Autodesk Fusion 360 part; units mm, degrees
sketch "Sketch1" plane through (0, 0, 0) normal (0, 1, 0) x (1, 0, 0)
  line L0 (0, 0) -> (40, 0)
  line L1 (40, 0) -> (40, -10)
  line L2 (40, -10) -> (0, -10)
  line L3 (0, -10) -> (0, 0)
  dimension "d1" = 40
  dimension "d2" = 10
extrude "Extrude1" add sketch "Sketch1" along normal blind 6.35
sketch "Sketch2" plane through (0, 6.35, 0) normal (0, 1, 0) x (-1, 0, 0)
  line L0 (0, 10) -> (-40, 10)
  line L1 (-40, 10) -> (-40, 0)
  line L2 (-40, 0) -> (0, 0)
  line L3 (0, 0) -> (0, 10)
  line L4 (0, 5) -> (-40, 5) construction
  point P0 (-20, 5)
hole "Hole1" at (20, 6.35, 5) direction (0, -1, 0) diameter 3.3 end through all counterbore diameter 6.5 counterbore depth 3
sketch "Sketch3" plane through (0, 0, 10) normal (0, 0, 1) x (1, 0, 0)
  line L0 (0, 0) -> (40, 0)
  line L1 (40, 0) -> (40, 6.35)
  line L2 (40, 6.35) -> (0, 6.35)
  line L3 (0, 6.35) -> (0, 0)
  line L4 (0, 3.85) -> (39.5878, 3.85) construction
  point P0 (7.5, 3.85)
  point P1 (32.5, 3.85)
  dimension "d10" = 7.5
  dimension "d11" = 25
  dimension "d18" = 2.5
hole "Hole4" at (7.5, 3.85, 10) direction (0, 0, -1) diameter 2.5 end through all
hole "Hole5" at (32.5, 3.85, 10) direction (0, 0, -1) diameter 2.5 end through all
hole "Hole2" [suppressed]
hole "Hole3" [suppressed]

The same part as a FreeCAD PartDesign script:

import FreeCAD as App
import Part
import Sketcher
from FreeCAD import Vector
Q = App.Units.Quantity

doc = App.newDocument("Part")
params = doc.addObject("Spreadsheet::Sheet", "Params")
for row, (alias, value) in enumerate([
    ("sketch1_width", "40 mm"),
    ("sketch1_height", "10 mm"),
    ("pad1_length", "6.35 mm"),
    ("sketch2_diameter", "3.3 mm"),
    ("hole_diameter", "3.3 mm"),
    ("hole_cbore_diameter", "6.5 mm"),
    ("hole_cbore_depth", "3 mm"),
    ("sketch3_diameter", "2.5 mm"),
    ("hole2_diameter", "2.5 mm"),
    ("sketch4_diameter", "2.5 mm"),
    ("hole3_diameter", "2.5 mm"),
], start=1):
    params.set(f"A{row}", alias)
    params.set(f"B{row}", "=" + value)
    params.setAlias(f"B{row}", alias)

body = doc.addObject("PartDesign::Body", "Body")

# Sketch on XZ plane
sketch1 = doc.addObject("Sketcher::SketchObject", "Sketch")
body.addObject(sketch1)
sketch1.AttachmentSupport = (doc.XZ_Plane, [""])
sketch1.MapMode = "FlatFace"
sketch1.addGeometry([
    Part.LineSegment(Vector(40, 0, 0), Vector(0, 0, 0)),
    Part.LineSegment(Vector(0, 0, 0), Vector(0, 10, 0)),
    Part.LineSegment(Vector(0, 10, 0), Vector(40, 10, 0)),
    Part.LineSegment(Vector(40, 10, 0), Vector(40, 0, 0)),
], False)
sketch1.addConstraint([
    Sketcher.Constraint("Coincident", 0, 2, 1, 1),
    Sketcher.Constraint("Coincident", 1, 2, 2, 1),
    Sketcher.Constraint("Coincident", 2, 2, 3, 1),
    Sketcher.Constraint("Coincident", 3, 2, 0, 1),
    Sketcher.Constraint("Horizontal", 0),
    Sketcher.Constraint("Vertical", 1),
    Sketcher.Constraint("Horizontal", 2),
    Sketcher.Constraint("Vertical", 3),
    Sketcher.Constraint("Coincident", 0, 2, -1, 1),
    Sketcher.Constraint("DistanceX", 0, 2, 0, 1, Q("40 mm")),
    Sketcher.Constraint("DistanceY", 1, 1, 1, 2, Q("10 mm")),
])
sketch1.setExpression("Constraints[9]", "Params.sketch1_width")
sketch1.setExpression("Constraints[10]", "Params.sketch1_height")
pad1 = doc.addObject("PartDesign::Pad", "Pad")
body.addObject(pad1)
pad1.Profile = sketch1
pad1.setExpression("Length", "Params.pad1_length")
pad1.Reversed = True

# Sketch on XZ plane
sketch2 = doc.addObject("Sketcher::SketchObject", "Sketch001")
body.addObject(sketch2)
sketch2.AttachmentSupport = (doc.XZ_Plane, [""])
sketch2.MapMode = "FlatFace"
sketch2.AttachmentOffset = App.Placement(Vector(0, 0, -6.35), App.Rotation())
sketch2.addGeometry(Part.Circle(Vector(20, 5, 0), Vector(0, 0, 1), 1.6), False)
sketch2.addConstraint([
    Sketcher.Constraint("Diameter", 0, Q("3.3 mm")),
    Sketcher.Constraint("DistanceX", -1, 1, 0, 3, Q("20 mm")),
    Sketcher.Constraint("DistanceY", -1, 1, 0, 3, Q("5 mm")),
])
sketch2.setExpression("Constraints[0]", "Params.sketch2_diameter")
doc.recompute()
hole = doc.addObject("PartDesign::Hole", "Hole")
body.addObject(hole)
hole.Profile = sketch2
hole.ThreadType = "None"
hole.setExpression("Diameter", "Params.hole_diameter")
hole.DepthType = "ThroughAll"
hole.HoleCutType = "Counterbore"
hole.setExpression("HoleCutDiameter", "Params.hole_cbore_diameter")
hole.setExpression("HoleCutDepth", "Params.hole_cbore_depth")
hole.Reversed = True

# Sketch on XY plane
sketch3 = doc.addObject("Sketcher::SketchObject", "Sketch002")
body.addObject(sketch3)
sketch3.AttachmentSupport = (doc.XY_Plane, [""])
sketch3.MapMode = "FlatFace"
sketch3.AttachmentOffset = App.Placement(Vector(0, 0, 10), App.Rotation())
sketch3.addGeometry(Part.Circle(Vector(7.5, 3.9, 0), Vector(0, 0, 1), 1.2), False)
sketch3.addConstraint([
    Sketcher.Constraint("Diameter", 0, Q("2.5 mm")),
    Sketcher.Constraint("DistanceX", -1, 1, 0, 3, Q("7.5 mm")),
    Sketcher.Constraint("DistanceY", -1, 1, 0, 3, Q("3.85 mm")),
])
sketch3.setExpression("Constraints[0]", "Params.sketch3_diameter")
doc.recompute()
hole2 = doc.addObject("PartDesign::Hole", "Hole001")
body.addObject(hole2)
hole2.Profile = sketch3
hole2.ThreadType = "None"
hole2.setExpression("Diameter", "Params.hole2_diameter")
hole2.DepthType = "ThroughAll"

# Sketch on XY plane
sketch4 = doc.addObject("Sketcher::SketchObject", "Sketch003")
body.addObject(sketch4)
sketch4.AttachmentSupport = (doc.XY_Plane, [""])
sketch4.MapMode = "FlatFace"
sketch4.AttachmentOffset = App.Placement(Vector(0, 0, 10), App.Rotation())
sketch4.addGeometry(Part.Circle(Vector(32.5, 3.9, 0), Vector(0, 0, 1), 1.2), False)
sketch4.addConstraint([
    Sketcher.Constraint("Diameter", 0, Q("2.5 mm")),
    Sketcher.Constraint("DistanceX", -1, 1, 0, 3, Q("32.5 mm")),
    Sketcher.Constraint("DistanceY", -1, 1, 0, 3, Q("3.85 mm")),
])
sketch4.setExpression("Constraints[0]", "Params.sketch4_diameter")
doc.recompute()
hole3 = doc.addObject("PartDesign::Hole", "Hole002")
body.addObject(hole3)
hole3.Profile = sketch4
hole3.ThreadType = "None"
hole3.setExpression("Diameter", "Params.hole3_diameter")
hole3.DepthType = "ThroughAll"

doc.recompute()
